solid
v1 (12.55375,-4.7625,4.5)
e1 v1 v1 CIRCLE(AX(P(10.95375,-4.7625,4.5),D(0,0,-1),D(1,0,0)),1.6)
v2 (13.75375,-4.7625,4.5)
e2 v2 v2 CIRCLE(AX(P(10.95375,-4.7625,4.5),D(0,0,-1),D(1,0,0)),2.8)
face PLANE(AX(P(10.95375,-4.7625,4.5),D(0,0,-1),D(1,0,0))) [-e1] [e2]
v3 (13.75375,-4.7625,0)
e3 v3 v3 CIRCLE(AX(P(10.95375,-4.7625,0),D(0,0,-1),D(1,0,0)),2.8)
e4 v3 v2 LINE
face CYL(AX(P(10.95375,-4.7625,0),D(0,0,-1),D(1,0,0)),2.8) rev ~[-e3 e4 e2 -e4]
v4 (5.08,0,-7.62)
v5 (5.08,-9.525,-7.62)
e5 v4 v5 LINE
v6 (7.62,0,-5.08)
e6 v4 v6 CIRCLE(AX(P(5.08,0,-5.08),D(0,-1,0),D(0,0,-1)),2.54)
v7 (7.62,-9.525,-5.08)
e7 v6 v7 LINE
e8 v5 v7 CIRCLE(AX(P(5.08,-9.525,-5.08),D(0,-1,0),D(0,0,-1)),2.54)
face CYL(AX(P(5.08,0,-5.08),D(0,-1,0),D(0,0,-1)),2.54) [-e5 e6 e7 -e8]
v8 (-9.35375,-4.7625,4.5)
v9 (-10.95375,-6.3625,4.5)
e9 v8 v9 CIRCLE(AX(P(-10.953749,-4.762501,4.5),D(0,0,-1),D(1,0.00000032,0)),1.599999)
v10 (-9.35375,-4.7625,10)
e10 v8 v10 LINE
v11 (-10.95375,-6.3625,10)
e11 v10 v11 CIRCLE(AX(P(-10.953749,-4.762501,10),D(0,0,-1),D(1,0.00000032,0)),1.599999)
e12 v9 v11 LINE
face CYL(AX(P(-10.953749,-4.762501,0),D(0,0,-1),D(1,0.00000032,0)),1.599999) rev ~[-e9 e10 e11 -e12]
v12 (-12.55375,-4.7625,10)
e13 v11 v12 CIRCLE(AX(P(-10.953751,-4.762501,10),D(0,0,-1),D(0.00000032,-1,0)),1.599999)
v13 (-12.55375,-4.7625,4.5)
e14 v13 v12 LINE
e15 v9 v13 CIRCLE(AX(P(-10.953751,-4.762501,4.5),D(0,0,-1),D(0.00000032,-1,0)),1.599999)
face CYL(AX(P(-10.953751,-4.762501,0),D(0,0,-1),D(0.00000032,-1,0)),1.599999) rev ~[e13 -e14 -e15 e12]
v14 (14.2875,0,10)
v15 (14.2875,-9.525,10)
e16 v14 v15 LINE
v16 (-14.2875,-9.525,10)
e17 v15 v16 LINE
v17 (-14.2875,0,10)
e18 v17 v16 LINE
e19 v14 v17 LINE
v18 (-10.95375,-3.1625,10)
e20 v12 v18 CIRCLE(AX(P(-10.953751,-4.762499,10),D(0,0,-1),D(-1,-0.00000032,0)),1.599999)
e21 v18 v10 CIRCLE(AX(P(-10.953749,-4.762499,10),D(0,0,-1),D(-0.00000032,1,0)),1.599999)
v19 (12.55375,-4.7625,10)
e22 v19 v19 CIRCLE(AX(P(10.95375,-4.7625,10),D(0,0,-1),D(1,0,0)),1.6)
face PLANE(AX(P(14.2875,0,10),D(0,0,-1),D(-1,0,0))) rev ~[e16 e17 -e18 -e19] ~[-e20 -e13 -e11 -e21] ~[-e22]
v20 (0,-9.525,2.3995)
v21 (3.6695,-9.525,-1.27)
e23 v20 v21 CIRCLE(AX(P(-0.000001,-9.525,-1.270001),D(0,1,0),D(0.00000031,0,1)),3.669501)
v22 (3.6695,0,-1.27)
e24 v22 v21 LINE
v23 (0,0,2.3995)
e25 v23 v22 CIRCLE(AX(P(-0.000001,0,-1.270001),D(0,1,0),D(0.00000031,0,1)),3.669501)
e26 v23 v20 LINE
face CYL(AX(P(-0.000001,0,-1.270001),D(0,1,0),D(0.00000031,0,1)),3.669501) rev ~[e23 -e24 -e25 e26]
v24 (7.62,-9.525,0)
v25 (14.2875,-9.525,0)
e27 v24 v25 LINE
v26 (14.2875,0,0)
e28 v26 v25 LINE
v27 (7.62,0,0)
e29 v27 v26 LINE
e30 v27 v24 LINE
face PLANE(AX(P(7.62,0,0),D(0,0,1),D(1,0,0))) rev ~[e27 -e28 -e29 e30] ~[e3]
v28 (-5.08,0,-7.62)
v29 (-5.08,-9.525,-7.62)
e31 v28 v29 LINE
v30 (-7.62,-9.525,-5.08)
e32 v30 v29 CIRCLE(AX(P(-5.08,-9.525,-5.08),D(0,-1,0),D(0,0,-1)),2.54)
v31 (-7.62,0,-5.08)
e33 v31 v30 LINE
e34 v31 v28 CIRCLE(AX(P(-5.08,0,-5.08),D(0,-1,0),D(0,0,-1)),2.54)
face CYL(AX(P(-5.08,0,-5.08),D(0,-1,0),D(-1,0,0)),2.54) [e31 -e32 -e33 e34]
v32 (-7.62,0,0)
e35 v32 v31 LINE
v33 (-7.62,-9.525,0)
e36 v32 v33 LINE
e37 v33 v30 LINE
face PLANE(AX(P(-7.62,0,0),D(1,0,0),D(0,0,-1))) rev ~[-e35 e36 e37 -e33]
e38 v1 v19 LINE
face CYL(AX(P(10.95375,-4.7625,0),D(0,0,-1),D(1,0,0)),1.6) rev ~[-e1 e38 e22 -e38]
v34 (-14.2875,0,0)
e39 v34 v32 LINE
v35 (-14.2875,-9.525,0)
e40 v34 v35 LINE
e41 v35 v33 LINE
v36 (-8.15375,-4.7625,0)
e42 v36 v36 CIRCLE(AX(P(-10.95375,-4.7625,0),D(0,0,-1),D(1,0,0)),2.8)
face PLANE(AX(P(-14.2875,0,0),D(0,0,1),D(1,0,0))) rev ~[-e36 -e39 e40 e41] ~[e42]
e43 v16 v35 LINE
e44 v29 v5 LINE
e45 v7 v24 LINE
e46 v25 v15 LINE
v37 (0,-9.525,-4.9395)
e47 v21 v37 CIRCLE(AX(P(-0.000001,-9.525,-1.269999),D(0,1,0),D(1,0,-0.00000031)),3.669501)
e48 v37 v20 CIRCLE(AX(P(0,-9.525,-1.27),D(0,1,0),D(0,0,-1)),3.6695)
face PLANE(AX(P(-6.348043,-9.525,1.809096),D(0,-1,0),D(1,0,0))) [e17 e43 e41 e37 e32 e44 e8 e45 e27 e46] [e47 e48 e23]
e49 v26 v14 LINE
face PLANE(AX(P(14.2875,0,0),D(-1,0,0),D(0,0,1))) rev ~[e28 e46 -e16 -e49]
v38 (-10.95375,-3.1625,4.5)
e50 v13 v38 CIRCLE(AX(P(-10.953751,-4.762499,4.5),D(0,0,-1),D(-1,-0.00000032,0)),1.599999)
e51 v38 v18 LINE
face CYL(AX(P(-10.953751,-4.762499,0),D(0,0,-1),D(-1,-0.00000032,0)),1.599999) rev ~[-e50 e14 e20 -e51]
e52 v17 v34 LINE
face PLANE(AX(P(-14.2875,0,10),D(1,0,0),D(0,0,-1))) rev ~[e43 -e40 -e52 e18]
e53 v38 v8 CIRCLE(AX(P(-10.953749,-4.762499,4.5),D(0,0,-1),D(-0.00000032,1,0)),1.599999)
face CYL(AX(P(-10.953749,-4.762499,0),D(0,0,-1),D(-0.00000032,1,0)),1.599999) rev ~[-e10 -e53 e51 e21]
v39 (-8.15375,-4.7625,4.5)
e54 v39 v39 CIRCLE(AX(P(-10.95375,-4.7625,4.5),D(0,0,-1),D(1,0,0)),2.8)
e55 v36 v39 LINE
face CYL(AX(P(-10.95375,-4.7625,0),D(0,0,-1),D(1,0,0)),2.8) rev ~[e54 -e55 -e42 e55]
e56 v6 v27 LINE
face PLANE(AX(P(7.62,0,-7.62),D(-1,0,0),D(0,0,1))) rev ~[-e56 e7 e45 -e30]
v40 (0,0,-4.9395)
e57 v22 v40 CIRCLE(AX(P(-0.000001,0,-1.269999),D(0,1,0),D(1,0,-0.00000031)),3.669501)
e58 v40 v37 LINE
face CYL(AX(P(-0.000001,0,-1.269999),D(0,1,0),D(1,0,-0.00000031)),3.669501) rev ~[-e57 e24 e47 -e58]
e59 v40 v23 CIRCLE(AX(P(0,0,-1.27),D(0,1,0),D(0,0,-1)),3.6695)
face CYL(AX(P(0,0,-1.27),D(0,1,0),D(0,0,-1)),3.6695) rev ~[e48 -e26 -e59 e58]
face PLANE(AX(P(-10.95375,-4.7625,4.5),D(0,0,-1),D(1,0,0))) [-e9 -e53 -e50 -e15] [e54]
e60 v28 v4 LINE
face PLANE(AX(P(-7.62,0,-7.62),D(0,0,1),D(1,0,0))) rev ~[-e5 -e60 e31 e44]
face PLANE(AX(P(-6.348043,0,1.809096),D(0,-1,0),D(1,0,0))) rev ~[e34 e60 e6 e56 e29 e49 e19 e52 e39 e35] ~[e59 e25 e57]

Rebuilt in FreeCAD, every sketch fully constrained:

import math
import FreeCAD as App
import Part
import Sketcher
from FreeCAD import Vector
Q = App.Units.Quantity


def edges_at(feature, points):
    """Names of the edges that pass closest to the given points."""
    edges = feature.Shape.Edges
    near = lambda p: min(range(len(edges)), key=lambda i: edges[i].distToShape(Part.Vertex(*p))[0])
    return sorted({f"Edge{near(p) + 1}" for p in points})


def add_polygon(sketch, points):
    """Adds a closed chain of lines whose ends are joined by coincident constraints."""
    first, n = sketch.GeometryCount, len(points)
    for a, b in zip(points, points[1:] + points[:1]):
        sketch.addGeometry(Part.LineSegment(App.Vector(*a, 0), App.Vector(*b, 0)), False)
    for i in range(n):
        sketch.addConstraint(Sketcher.Constraint("Coincident", first + i, 2, first + (i + 1) % n, 1))

doc = App.newDocument("Part")
params = doc.addObject("Spreadsheet::Sheet", "Params")
for row, (alias, value) in enumerate([
    ("sketch1_height", "10 mm"),
    ("sketch1_width", "15.24 mm"),
    ("sketch1_height2", "7.62 mm"),
    ("pad1_length", "9.525 mm"),
    ("sketch2_diameter", "3.2 mm"),
    ("fillet_radius", "2.54 mm"),
    ("sketch3_diameter", "5.6 mm"),
    ("pocket2_length", "4.5 mm"),
], start=1):
    params.set(f"A{row}", alias)
    params.set(f"B{row}", "=" + value)
    params.setAlias(f"B{row}", alias)

body = doc.addObject("PartDesign::Body", "Body")

# Sketch on XZ plane
sketch1 = body.newObject("Sketcher::SketchObject", "Sketch")
sketch1.AttachmentSupport = (doc.getObject("XZ_Plane"), [""])
sketch1.MapMode = "FlatFace"
add_polygon(sketch1, [(-14.3, 10), (-14.3, 0), (-7.6, 0), (-7.6, -7.6), (7.6, -7.6), (7.6, 0), (14.3, 0), (14.3, 10)])  # lines 0-7
sketch1.addGeometry(Part.ArcOfCircle(Part.Circle(Vector(0, -1.3, 0), Vector(0, 0, 1), 3.7), math.radians(90), math.radians(270)), False)  # 8
sketch1.addGeometry(Part.ArcOfCircle(Part.Circle(Vector(0, -1.3, 0), Vector(0, 0, 1), 3.7), math.radians(0), math.radians(90)), False)  # 9
sketch1.addGeometry(Part.ArcOfCircle(Part.Circle(Vector(0, -1.3, 0), Vector(0, 0, 1), 3.7), math.radians(-90), math.radians(0)), False)  # 10
sketch1.addConstraint([
    Sketcher.Constraint("Tangent", 8, 1, 9, 2),
    Sketcher.Constraint("Tangent", 9, 1, 10, 2),
    Sketcher.Constraint("Tangent", 10, 1, 8, 2),
    Sketcher.Constraint("Vertical", 0),
    Sketcher.Constraint("Horizontal", 1),
    Sketcher.Constraint("Vertical", 2),
    Sketcher.Constraint("Horizontal", 3),
    Sketcher.Constraint("Vertical", 4),
    Sketcher.Constraint("Horizontal", 5),
    Sketcher.Constraint("Vertical", 6),
    Sketcher.Constraint("Horizontal", 7),
    Sketcher.Constraint("Symmetric", 1, 2, 4, 2, -1, 1),
    Sketcher.Constraint("Symmetric", 0, 2, 5, 2, -2),
    Sketcher.Constraint("PointOnObject", 8, 3, -2),
    Sketcher.Constraint("PointOnObject", 8, 1, -2),
    Sketcher.Constraint("PointOnObject", 10, 1, -2),
    Sketcher.Constraint("Horizontal", 10, 3, 9, 1),
    Sketcher.Constraint("DistanceY", 0, 2, 0, 1, Q("10 mm")),
    Sketcher.Constraint("DistanceX", 3, 1, 3, 2, Q("15.24 mm")),
    Sketcher.Constraint("DistanceY", 2, 2, 2, 1, Q("7.62 mm")),
    Sketcher.Constraint("Radius", 8, Q("3.6695 mm")),
    Sketcher.Constraint("DistanceX", 7, 2, 7, 1, Q("28.575 mm")),
    Sketcher.Constraint("DistanceY", 8, 3, -1, 1, Q("1.27 mm")),
])
sketch1.setExpression("Constraints[25]", "Params.sketch1_height")
sketch1.setExpression("Constraints[26]", "Params.sketch1_width")
sketch1.setExpression("Constraints[27]", "Params.sketch1_height2")
pad1 = body.newObject("PartDesign::Pad", "Pad")
pad1.Profile = sketch1
pad1.setExpression("Length", "Params.pad1_length")

# Sketch on XY plane
sketch2 = body.newObject("Sketcher::SketchObject", "Sketch001")
sketch2.AttachmentSupport = (doc.getObject("XY_Plane"), [""])
sketch2.MapMode = "FlatFace"
sketch2.addGeometry([
    Part.ArcOfCircle(Part.Circle(Vector(-11, -4.8, 0), Vector(0, 0, 1), 1.6), math.radians(-90), math.radians(0)),  # 0
    Part.ArcOfCircle(Part.Circle(Vector(-11, -4.8, 0), Vector(0, 0, 1), 1.6), math.radians(180), math.radians(270)),  # 1
    Part.ArcOfCircle(Part.Circle(Vector(-11, -4.8, 0), Vector(0, 0, 1), 1.6), math.radians(90), math.radians(180)),  # 2
    Part.ArcOfCircle(Part.Circle(Vector(-11, -4.8, 0), Vector(0, 0, 1), 1.6), math.radians(0), math.radians(90)),  # 3
    Part.Circle(Vector(11, -4.8, 0), Vector(0, 0, 1), 1.6),  # 4
], False)
sketch2.addConstraint([
    Sketcher.Constraint("Tangent", 0, 1, 1, 2),
    Sketcher.Constraint("Tangent", 1, 1, 2, 2),
    Sketcher.Constraint("Tangent", 2, 1, 3, 2),
    Sketcher.Constraint("Tangent", 3, 1, 0, 2),
    Sketcher.Constraint("Equal", 0, 1),
    Sketcher.Constraint("Equal", 3, 4),
    Sketcher.Constraint("Symmetric", 0, 3, 4, 3, -2),
    Sketcher.Constraint("Horizontal", 4, 3, 1, 1),
    Sketcher.Constraint("Horizontal", 1, 1, 3, 1),
    Sketcher.Constraint("Vertical", 3, 3, 0, 1),
    Sketcher.Constraint("Vertical", 0, 1, 2, 1),
    Sketcher.Constraint("Diameter", 4, Q("3.2 mm")),
    Sketcher.Constraint("DistanceY", 0, 3, -1, 1, Q("4.762501 mm")),
    Sketcher.Constraint("DistanceX", 0, 3, 4, 3, Q("21.907499 mm")),
])
sketch2.setExpression("Constraints[11]", "Params.sketch2_diameter")
pocket1 = body.newObject("PartDesign::Pocket", "Pocket")
pocket1.Profile = sketch2
pocket1.Type = "ThroughAll"
pocket1.Reversed = True
doc.recompute()

fillet = body.newObject("PartDesign::Fillet", "Fillet")
fillet.Base = (pocket1, edges_at(pocket1, [(-7.62, -4.763, -7.62), (7.62, -4.763, -7.62)]))
fillet.setExpression("Radius", "Params.fillet_radius")

# Sketch on XY plane
sketch3 = body.newObject("Sketcher::SketchObject", "Sketch002")
sketch3.AttachmentSupport = (doc.getObject("XY_Plane"), [""])
sketch3.MapMode = "FlatFace"
sketch3.addGeometry([
    Part.Circle(Vector(-11, -4.8, 0), Vector(0, 0, 1), 2.8),
    Part.Circle(Vector(11, -4.8, 0), Vector(0, 0, 1), 2.8),
], False)
sketch3.addConstraint([
    Sketcher.Constraint("Equal", 0, 1),
    Sketcher.Constraint("Symmetric", 0, 3, 1, 3, -2),
    Sketcher.Constraint("Diameter", 0, Q("5.6 mm")),
    Sketcher.Constraint("DistanceY", 0, 3, -1, 1, Q("4.7625 mm")),
    Sketcher.Constraint("DistanceX", 0, 3, 1, 3, Q("21.9075 mm")),
])
sketch3.setExpression("Constraints[2]", "Params.sketch3_diameter")
pocket2 = body.newObject("PartDesign::Pocket", "Pocket001")
pocket2.Profile = sketch3
pocket2.setExpression("Length", "Params.pocket2_length")
pocket2.Reversed = True

doc.recompute()
